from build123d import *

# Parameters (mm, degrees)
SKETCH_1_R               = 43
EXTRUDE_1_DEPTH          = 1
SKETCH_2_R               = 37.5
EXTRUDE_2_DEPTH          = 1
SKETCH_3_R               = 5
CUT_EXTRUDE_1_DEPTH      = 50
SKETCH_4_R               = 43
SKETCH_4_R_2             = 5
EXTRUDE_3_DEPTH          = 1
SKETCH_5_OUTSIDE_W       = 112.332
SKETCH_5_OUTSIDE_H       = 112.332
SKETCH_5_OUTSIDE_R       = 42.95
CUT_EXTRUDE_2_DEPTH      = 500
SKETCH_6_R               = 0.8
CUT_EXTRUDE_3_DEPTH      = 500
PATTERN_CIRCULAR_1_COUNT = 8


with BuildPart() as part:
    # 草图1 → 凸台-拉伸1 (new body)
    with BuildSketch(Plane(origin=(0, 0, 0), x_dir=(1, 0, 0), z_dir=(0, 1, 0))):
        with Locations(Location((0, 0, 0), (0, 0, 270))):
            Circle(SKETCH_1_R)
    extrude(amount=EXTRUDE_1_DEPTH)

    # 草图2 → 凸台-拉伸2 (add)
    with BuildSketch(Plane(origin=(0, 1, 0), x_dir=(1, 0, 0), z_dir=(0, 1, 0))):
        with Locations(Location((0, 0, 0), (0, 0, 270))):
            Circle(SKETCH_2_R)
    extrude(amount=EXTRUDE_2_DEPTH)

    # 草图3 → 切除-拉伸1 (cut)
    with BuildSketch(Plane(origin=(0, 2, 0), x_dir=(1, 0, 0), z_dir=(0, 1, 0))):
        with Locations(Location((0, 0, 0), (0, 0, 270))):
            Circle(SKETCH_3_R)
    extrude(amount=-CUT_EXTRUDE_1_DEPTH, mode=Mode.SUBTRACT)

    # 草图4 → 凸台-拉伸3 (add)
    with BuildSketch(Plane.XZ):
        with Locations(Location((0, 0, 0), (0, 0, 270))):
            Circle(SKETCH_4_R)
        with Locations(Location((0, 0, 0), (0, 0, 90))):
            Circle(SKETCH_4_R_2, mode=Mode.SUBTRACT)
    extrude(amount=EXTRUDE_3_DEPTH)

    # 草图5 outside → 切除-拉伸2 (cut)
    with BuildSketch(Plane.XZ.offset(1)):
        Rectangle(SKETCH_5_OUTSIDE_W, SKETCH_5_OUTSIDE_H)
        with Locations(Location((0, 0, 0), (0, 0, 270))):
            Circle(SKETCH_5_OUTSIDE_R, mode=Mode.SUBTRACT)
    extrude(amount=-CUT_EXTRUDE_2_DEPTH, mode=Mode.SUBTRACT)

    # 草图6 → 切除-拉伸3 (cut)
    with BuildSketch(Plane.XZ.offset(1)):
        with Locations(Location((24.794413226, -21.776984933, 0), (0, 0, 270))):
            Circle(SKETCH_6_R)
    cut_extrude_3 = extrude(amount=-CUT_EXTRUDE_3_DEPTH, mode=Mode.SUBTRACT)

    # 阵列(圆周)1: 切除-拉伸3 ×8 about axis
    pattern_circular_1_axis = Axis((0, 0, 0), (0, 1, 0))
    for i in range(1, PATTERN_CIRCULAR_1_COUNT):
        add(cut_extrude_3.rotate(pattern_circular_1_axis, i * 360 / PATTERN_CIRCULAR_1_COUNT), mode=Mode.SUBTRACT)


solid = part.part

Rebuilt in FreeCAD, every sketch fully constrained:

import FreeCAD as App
import Part
import Sketcher

V = App.Vector


def add_polygon(sketch, points):
    """Adds a closed chain of lines whose ends are joined by coincident constraints."""
    first, n = sketch.GeometryCount, len(points)
    for a, b in zip(points, points[1:] + points[:1]):
        sketch.addGeometry(Part.LineSegment(App.Vector(*a, 0), App.Vector(*b, 0)), False)
    for i in range(n):
        sketch.addConstraint(Sketcher.Constraint("Coincident", first + i, 2, first + (i + 1) % n, 1))

doc = App.newDocument("Part")
body = doc.addObject("PartDesign::Body", "Body")

# Sketch on XZ plane
sketch1 = doc.addObject("Sketcher::SketchObject", "Sketch")
body.addObject(sketch1)
sketch1.AttachmentSupport = (doc.XZ_Plane, [""])
sketch1.MapMode = "FlatFace"
sketch1.addGeometry(Part.Circle(V(0, 0, 0), V(0, 0, 1), 43), False)
sketch1.addConstraint([
    Sketcher.Constraint("Coincident", 0, 3, -1, 1),
    Sketcher.Constraint("Diameter", 0, 86.0),
])
pad1 = doc.addObject("PartDesign::Pad", "Pad")
body.addObject(pad1)
pad1.Profile = sketch1
pad1.Length = 1
pad1.Reversed = True

# Sketch on XZ plane
sketch2 = doc.addObject("Sketcher::SketchObject", "Sketch001")
body.addObject(sketch2)
sketch2.AttachmentSupport = (doc.XZ_Plane, [""])
sketch2.MapMode = "FlatFace"
sketch2.AttachmentOffset = App.Placement(V(0, 0, -1), App.Rotation())
sketch2.addGeometry(Part.Circle(V(0, 0, 0), V(0, 0, 1), 38), False)
sketch2.addConstraint([
    Sketcher.Constraint("Coincident", 0, 3, -1, 1),
    Sketcher.Constraint("Diameter", 0, 75.0),
])
pad2 = doc.addObject("PartDesign::Pad", "Pad001")
body.addObject(pad2)
pad2.Profile = sketch2
pad2.Length = 1
pad2.Reversed = True

# Sketch on XZ plane
sketch3 = doc.addObject("Sketcher::SketchObject", "Sketch002")
body.addObject(sketch3)
sketch3.AttachmentSupport = (doc.XZ_Plane, [""])
sketch3.MapMode = "FlatFace"
sketch3.AttachmentOffset = App.Placement(V(0, 0, -2), App.Rotation())
sketch3.addGeometry(Part.Circle(V(0, 0, 0), V(0, 0, 1), 5), False)
sketch3.addConstraint([
    Sketcher.Constraint("Coincident", 0, 3, -1, 1),
    Sketcher.Constraint("Diameter", 0, 10.0),
])
pocket1 = doc.addObject("PartDesign::Pocket", "Pocket")
body.addObject(pocket1)
pocket1.Profile = sketch3
pocket1.Length = 50
pocket1.Reversed = True

# Sketch on XZ plane
sketch4 = doc.addObject("Sketcher::SketchObject", "Sketch003")
body.addObject(sketch4)
sketch4.AttachmentSupport = (doc.XZ_Plane, [""])
sketch4.MapMode = "FlatFace"
sketch4.addGeometry([
    Part.Circle(V(0, 0, 0), V(0, 0, 1), 43),
    Part.Circle(V(0, 0, 0), V(0, 0, 1), 5),
], False)
sketch4.addConstraint([
    Sketcher.Constraint("Coincident", 0, 3, -1, 1),
    Sketcher.Constraint("Coincident", 1, 3, -1, 1),
    Sketcher.Constraint("Diameter", 0, 86.0),
    Sketcher.Constraint("Diameter", 1, 10.0),
])
pad3 = doc.addObject("PartDesign::Pad", "Pad002")
body.addObject(pad3)
pad3.Profile = sketch4
pad3.Length = 1

# Sketch on XZ plane
sketch5 = doc.addObject("Sketcher::SketchObject", "Sketch004")
body.addObject(sketch5)
sketch5.AttachmentSupport = (doc.XZ_Plane, [""])
sketch5.MapMode = "FlatFace"
sketch5.AttachmentOffset = App.Placement(V(0, 0, 1), App.Rotation())
add_polygon(sketch5, [(-56, 56), (-56, -56), (56, -56), (56, 56)])  # lines 0-3
sketch5.addGeometry(Part.Circle(V(0, 0, 0), V(0, 0, 1), 43), False)  # 4
sketch5.addConstraint([
    Sketcher.Constraint("Vertical", 0),
    Sketcher.Constraint("Horizontal", 1),
    Sketcher.Constraint("Vertical", 2),
    Sketcher.Constraint("Horizontal", 3),
    Sketcher.Constraint("Coincident", 4, 3, -1, 1),
    Sketcher.Constraint("Symmetric", 0, 2, 2, 2, -1, 1),
    Sketcher.Constraint("Equal", 3, 0),
    Sketcher.Constraint("Diameter", 4, 85.9),
    Sketcher.Constraint("DistanceX", 1, 1, 1, 2, 112.332),
])
pocket2 = doc.addObject("PartDesign::Pocket", "Pocket001")
body.addObject(pocket2)
pocket2.Profile = sketch5
pocket2.Length = 500

# Sketch on XZ plane
sketch6 = doc.addObject("Sketcher::SketchObject", "Sketch005")
body.addObject(sketch6)
sketch6.AttachmentSupport = (doc.XZ_Plane, [""])
sketch6.MapMode = "FlatFace"
sketch6.AttachmentOffset = App.Placement(V(0, 0, 1), App.Rotation())
sketch6.addGeometry(Part.Circle(V(24.8, -21.8, 0), V(0, 0, 1), 0.8), False)
sketch6.addConstraint([
    Sketcher.Constraint("Diameter", 0, 1.6),
    Sketcher.Constraint("DistanceX", -1, 1, 0, 3, 24.794413),
    Sketcher.Constraint("DistanceY", 0, 3, -1, 1, 21.776985),
])
pocket3 = doc.addObject("PartDesign::Pocket", "Pocket002")
body.addObject(pocket3)
pocket3.Profile = sketch6
pocket3.Length = 500
doc.recompute()

polarpattern = doc.addObject("PartDesign::PolarPattern", "PolarPattern")
body.addObject(polarpattern)
polarpattern.Originals = [pocket3]
polarpattern.Axis = (doc.Y_Axis, [""])
polarpattern.Angle = 360
polarpattern.Occurrences = 8
body.Tip = polarpattern

doc.recompute()
